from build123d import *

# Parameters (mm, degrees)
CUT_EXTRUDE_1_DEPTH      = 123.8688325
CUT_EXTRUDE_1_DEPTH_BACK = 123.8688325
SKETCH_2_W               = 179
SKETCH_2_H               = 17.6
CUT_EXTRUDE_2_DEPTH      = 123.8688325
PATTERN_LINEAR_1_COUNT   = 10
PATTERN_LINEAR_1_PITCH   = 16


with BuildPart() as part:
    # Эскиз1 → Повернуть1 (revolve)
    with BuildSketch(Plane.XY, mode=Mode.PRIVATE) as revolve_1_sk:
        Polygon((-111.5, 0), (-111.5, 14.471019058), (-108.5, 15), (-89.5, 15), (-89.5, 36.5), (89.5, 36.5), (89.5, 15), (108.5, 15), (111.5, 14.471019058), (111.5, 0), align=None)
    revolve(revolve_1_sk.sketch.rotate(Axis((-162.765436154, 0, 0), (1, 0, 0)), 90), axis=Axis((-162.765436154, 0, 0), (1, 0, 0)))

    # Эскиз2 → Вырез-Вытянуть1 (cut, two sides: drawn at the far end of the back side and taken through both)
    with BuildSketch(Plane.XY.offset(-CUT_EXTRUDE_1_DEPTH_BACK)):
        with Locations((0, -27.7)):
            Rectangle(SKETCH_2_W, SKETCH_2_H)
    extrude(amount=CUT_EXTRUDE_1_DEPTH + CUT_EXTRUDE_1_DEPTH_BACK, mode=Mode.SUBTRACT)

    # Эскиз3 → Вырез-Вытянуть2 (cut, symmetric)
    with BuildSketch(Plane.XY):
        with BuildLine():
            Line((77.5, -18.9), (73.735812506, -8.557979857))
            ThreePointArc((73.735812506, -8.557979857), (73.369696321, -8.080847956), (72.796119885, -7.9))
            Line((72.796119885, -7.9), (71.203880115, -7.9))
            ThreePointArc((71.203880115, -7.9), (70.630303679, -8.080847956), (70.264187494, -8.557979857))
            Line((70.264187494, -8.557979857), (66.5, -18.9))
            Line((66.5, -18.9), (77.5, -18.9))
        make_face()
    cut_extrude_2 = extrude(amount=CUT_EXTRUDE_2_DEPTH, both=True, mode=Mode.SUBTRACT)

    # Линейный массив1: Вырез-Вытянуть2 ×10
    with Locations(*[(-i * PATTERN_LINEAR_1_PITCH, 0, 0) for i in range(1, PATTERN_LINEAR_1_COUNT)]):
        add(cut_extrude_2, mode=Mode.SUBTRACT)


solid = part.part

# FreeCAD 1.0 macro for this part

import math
import FreeCAD as App
import Part
import Sketcher
from FreeCAD import Vector
Q = App.Units.Quantity


def add_polygon(sketch, points):
    """Adds a closed chain of lines whose ends are joined by coincident constraints."""
    first, n = sketch.GeometryCount, len(points)
    for a, b in zip(points, points[1:] + points[:1]):
        sketch.addGeometry(Part.LineSegment(App.Vector(*a, 0), App.Vector(*b, 0)), False)
    for i in range(n):
        sketch.addConstraint(Sketcher.Constraint("Coincident", first + i, 2, first + (i + 1) % n, 1))

doc = App.newDocument("Part")
params = doc.addObject("Spreadsheet::Sheet", "Params")
for row, (alias, value) in enumerate([
    ("sketch1_width", "223 mm"),
    ("sketch1_width2", "19 mm"),
    ("sketch1_width3", "179 mm"),
    ("sketch1_height", "21.5 mm"),
    ("revolution_angle", "360 deg"),
    ("sketch2_width", "179 mm"),
    ("sketch2_height", "17.6 mm"),
    ("sketch3_radius", "1 mm"),
    ("sketch3_width", "11 mm"),
    ("pocket2_length", "247.737665 mm"),
    ("linearpattern_pitch", "16 mm"),
], start=1):
    params.set(f"A{row}", alias)
    params.set(f"B{row}", "=" + value)
    params.setAlias(f"B{row}", alias)

body = doc.addObject("PartDesign::Body", "Body")

# Sketch on XY plane
sketch1 = body.newObject("Sketcher::SketchObject", "Sketch")
sketch1.AttachmentSupport = (doc.getObject("XY_Plane"), [""])
sketch1.MapMode = "FlatFace"
add_polygon(sketch1, [(-111.5, 14.5), (-111.5, 0), (111.5, 0), (111.5, 14.5), (108.5, 15), (89.5, 15), (89.5, 36.5), (-89.5, 36.5), (-89.5, 15), (-108.5, 15)])  # lines 0-9
sketch1.addConstraint([
    Sketcher.Constraint("Vertical", 0),
    Sketcher.Constraint("Horizontal", 1),
    Sketcher.Constraint("Vertical", 2),
    Sketcher.Constraint("Horizontal", 4),
    Sketcher.Constraint("Vertical", 5),
    Sketcher.Constraint("Horizontal", 6),
    Sketcher.Constraint("Vertical", 7),
    Sketcher.Constraint("Horizontal", 8),
    Sketcher.Constraint("Symmetric", 0, 2, 1, 2, -1, 1),
    Sketcher.Constraint("Symmetric", 4, 2, 7, 2, -2),
    Sketcher.Constraint("Horizontal", 2, 2, 9, 2),
    Sketcher.Constraint("Equal", 4, 8),
    Sketcher.Constraint("DistanceX", 1, 1, 1, 2, 223.0),
    Sketcher.Constraint("DistanceX", 4, 2, 4, 1, 19.0),
    Sketcher.Constraint("DistanceX", 6, 2, 6, 1, 179.0),
    Sketcher.Constraint("Angle", 3, Q("170 deg")),
    Sketcher.Constraint("DistanceY", 5, 1, 5, 2, 21.5),
    Sketcher.Constraint("DistanceY", -1, 1, 3, 2, 15.0),
])
sketch1.setExpression("Constraints[22]", "Params.sketch1_width")
sketch1.setExpression("Constraints[23]", "Params.sketch1_width2")
sketch1.setExpression("Constraints[24]", "Params.sketch1_width3")
sketch1.setExpression("Constraints[26]", "Params.sketch1_height")
revolution = body.newObject("PartDesign::Revolution", "Revolution")
revolution.Profile = sketch1
revolution.ReferenceAxis = (sketch1, ["H_Axis"])
revolution.setExpression("Angle", "Params.revolution_angle")

# Sketch on XY plane
sketch2 = body.newObject("Sketcher::SketchObject", "Sketch001")
sketch2.AttachmentSupport = (doc.getObject("XY_Plane"), [""])
sketch2.MapMode = "FlatFace"
add_polygon(sketch2, [(-90, -19), (-90, -36), (90, -36), (90, -19)])  # lines 0-3
sketch2.addConstraint([
    Sketcher.Constraint("Vertical", 0),
    Sketcher.Constraint("Horizontal", 1),
    Sketcher.Constraint("Vertical", 2),
    Sketcher.Constraint("Horizontal", 3),
    Sketcher.Constraint("DistanceX", 1, 1, 1, 2, 179.0),
    Sketcher.Constraint("DistanceY", 0, 2, 0, 1, 17.6),
    Sketcher.Constraint("DistanceX", 0, 2, -1, 1, 89.5),
    Sketcher.Constraint("DistanceY", 0, 2, -1, 1, 36.5),
])
sketch2.setExpression("Constraints[8]", "Params.sketch2_width")
sketch2.setExpression("Constraints[9]", "Params.sketch2_height")
pocket1 = body.newObject("PartDesign::Pocket", "Pocket")
pocket1.Profile = sketch2
pocket1.Type = "ThroughAll"
pocket1.Midplane = True

# Sketch on XY plane
sketch3 = body.newObject("Sketcher::SketchObject", "Sketch002")
sketch3.AttachmentSupport = (doc.getObject("XY_Plane"), [""])
sketch3.MapMode = "FlatFace"
sketch3.addGeometry([
    Part.LineSegment(Vector(77.5, -18.9, 0), Vector(73.7, -8.6, 0)),  # 0
    Part.ArcOfCircle(Part.Circle(Vector(72.8, -8.9, 0), Vector(0, 0, 1), 1), math.radians(20), math.radians(90)),  # 1
    Part.LineSegment(Vector(72.8, -7.9, 0), Vector(71.2, -7.9, 0)),  # 2
    Part.ArcOfCircle(Part.Circle(Vector(71.2, -8.9, 0), Vector(0, 0, 1), 1), math.radians(90), math.radians(160)),  # 3
    Part.LineSegment(Vector(70.3, -8.6, 0), Vector(66.5, -18.9, 0)),  # 4
    Part.LineSegment(Vector(66.5, -18.9, 0), Vector(77.5, -18.9, 0)),  # 5
], False)
sketch3.addConstraint([
    Sketcher.Constraint("Tangent", 0, 2, 1, 1),
    Sketcher.Constraint("Tangent", 1, 2, 2, 1),
    Sketcher.Constraint("Tangent", 2, 2, 3, 1),
    Sketcher.Constraint("Tangent", 3, 2, 4, 1),
    Sketcher.Constraint("Coincident", 4, 2, 5, 1),
    Sketcher.Constraint("Coincident", 5, 2, 0, 1),
    Sketcher.Constraint("Horizontal", 2),
    Sketcher.Constraint("Horizontal", 5),
    Sketcher.Constraint("Equal", 1, 3),
    Sketcher.Constraint("Horizontal", 0, 2, 3, 2),
    Sketcher.Constraint("Radius", 1, 1.0),
    Sketcher.Constraint("DistanceX", 5, 1, 5, 2, 11.0),
    Sketcher.Constraint("Angle", 0, Q("110 deg")),
    Sketcher.Constraint("DistanceY", 4, 2, 3, 3, 10.0),
    Sketcher.Constraint("DistanceY", 1, 3, -1, 1, 8.9),
    Sketcher.Constraint("DistanceX", -1, 1, 4, 2, 66.5),
])
sketch3.setExpression("Constraints[10]", "Params.sketch3_radius")
sketch3.setExpression("Constraints[11]", "Params.sketch3_width")
pocket2 = body.newObject("PartDesign::Pocket", "Pocket001")
pocket2.Profile = sketch3
pocket2.setExpression("Length", "Params.pocket2_length")
pocket2.Midplane = True
doc.recompute()

linearpattern = body.newObject("PartDesign::LinearPattern", "LinearPattern")
linearpattern.Originals = [pocket2]
linearpattern.Direction = (doc.getObject("X_Axis"), [""])
linearpattern.Mode = "offset"
linearpattern.setExpression("Offset", "Params.linearpattern_pitch")
linearpattern.Occurrences = 10
linearpattern.Reversed = True
body.Tip = linearpattern

doc.recompute()
